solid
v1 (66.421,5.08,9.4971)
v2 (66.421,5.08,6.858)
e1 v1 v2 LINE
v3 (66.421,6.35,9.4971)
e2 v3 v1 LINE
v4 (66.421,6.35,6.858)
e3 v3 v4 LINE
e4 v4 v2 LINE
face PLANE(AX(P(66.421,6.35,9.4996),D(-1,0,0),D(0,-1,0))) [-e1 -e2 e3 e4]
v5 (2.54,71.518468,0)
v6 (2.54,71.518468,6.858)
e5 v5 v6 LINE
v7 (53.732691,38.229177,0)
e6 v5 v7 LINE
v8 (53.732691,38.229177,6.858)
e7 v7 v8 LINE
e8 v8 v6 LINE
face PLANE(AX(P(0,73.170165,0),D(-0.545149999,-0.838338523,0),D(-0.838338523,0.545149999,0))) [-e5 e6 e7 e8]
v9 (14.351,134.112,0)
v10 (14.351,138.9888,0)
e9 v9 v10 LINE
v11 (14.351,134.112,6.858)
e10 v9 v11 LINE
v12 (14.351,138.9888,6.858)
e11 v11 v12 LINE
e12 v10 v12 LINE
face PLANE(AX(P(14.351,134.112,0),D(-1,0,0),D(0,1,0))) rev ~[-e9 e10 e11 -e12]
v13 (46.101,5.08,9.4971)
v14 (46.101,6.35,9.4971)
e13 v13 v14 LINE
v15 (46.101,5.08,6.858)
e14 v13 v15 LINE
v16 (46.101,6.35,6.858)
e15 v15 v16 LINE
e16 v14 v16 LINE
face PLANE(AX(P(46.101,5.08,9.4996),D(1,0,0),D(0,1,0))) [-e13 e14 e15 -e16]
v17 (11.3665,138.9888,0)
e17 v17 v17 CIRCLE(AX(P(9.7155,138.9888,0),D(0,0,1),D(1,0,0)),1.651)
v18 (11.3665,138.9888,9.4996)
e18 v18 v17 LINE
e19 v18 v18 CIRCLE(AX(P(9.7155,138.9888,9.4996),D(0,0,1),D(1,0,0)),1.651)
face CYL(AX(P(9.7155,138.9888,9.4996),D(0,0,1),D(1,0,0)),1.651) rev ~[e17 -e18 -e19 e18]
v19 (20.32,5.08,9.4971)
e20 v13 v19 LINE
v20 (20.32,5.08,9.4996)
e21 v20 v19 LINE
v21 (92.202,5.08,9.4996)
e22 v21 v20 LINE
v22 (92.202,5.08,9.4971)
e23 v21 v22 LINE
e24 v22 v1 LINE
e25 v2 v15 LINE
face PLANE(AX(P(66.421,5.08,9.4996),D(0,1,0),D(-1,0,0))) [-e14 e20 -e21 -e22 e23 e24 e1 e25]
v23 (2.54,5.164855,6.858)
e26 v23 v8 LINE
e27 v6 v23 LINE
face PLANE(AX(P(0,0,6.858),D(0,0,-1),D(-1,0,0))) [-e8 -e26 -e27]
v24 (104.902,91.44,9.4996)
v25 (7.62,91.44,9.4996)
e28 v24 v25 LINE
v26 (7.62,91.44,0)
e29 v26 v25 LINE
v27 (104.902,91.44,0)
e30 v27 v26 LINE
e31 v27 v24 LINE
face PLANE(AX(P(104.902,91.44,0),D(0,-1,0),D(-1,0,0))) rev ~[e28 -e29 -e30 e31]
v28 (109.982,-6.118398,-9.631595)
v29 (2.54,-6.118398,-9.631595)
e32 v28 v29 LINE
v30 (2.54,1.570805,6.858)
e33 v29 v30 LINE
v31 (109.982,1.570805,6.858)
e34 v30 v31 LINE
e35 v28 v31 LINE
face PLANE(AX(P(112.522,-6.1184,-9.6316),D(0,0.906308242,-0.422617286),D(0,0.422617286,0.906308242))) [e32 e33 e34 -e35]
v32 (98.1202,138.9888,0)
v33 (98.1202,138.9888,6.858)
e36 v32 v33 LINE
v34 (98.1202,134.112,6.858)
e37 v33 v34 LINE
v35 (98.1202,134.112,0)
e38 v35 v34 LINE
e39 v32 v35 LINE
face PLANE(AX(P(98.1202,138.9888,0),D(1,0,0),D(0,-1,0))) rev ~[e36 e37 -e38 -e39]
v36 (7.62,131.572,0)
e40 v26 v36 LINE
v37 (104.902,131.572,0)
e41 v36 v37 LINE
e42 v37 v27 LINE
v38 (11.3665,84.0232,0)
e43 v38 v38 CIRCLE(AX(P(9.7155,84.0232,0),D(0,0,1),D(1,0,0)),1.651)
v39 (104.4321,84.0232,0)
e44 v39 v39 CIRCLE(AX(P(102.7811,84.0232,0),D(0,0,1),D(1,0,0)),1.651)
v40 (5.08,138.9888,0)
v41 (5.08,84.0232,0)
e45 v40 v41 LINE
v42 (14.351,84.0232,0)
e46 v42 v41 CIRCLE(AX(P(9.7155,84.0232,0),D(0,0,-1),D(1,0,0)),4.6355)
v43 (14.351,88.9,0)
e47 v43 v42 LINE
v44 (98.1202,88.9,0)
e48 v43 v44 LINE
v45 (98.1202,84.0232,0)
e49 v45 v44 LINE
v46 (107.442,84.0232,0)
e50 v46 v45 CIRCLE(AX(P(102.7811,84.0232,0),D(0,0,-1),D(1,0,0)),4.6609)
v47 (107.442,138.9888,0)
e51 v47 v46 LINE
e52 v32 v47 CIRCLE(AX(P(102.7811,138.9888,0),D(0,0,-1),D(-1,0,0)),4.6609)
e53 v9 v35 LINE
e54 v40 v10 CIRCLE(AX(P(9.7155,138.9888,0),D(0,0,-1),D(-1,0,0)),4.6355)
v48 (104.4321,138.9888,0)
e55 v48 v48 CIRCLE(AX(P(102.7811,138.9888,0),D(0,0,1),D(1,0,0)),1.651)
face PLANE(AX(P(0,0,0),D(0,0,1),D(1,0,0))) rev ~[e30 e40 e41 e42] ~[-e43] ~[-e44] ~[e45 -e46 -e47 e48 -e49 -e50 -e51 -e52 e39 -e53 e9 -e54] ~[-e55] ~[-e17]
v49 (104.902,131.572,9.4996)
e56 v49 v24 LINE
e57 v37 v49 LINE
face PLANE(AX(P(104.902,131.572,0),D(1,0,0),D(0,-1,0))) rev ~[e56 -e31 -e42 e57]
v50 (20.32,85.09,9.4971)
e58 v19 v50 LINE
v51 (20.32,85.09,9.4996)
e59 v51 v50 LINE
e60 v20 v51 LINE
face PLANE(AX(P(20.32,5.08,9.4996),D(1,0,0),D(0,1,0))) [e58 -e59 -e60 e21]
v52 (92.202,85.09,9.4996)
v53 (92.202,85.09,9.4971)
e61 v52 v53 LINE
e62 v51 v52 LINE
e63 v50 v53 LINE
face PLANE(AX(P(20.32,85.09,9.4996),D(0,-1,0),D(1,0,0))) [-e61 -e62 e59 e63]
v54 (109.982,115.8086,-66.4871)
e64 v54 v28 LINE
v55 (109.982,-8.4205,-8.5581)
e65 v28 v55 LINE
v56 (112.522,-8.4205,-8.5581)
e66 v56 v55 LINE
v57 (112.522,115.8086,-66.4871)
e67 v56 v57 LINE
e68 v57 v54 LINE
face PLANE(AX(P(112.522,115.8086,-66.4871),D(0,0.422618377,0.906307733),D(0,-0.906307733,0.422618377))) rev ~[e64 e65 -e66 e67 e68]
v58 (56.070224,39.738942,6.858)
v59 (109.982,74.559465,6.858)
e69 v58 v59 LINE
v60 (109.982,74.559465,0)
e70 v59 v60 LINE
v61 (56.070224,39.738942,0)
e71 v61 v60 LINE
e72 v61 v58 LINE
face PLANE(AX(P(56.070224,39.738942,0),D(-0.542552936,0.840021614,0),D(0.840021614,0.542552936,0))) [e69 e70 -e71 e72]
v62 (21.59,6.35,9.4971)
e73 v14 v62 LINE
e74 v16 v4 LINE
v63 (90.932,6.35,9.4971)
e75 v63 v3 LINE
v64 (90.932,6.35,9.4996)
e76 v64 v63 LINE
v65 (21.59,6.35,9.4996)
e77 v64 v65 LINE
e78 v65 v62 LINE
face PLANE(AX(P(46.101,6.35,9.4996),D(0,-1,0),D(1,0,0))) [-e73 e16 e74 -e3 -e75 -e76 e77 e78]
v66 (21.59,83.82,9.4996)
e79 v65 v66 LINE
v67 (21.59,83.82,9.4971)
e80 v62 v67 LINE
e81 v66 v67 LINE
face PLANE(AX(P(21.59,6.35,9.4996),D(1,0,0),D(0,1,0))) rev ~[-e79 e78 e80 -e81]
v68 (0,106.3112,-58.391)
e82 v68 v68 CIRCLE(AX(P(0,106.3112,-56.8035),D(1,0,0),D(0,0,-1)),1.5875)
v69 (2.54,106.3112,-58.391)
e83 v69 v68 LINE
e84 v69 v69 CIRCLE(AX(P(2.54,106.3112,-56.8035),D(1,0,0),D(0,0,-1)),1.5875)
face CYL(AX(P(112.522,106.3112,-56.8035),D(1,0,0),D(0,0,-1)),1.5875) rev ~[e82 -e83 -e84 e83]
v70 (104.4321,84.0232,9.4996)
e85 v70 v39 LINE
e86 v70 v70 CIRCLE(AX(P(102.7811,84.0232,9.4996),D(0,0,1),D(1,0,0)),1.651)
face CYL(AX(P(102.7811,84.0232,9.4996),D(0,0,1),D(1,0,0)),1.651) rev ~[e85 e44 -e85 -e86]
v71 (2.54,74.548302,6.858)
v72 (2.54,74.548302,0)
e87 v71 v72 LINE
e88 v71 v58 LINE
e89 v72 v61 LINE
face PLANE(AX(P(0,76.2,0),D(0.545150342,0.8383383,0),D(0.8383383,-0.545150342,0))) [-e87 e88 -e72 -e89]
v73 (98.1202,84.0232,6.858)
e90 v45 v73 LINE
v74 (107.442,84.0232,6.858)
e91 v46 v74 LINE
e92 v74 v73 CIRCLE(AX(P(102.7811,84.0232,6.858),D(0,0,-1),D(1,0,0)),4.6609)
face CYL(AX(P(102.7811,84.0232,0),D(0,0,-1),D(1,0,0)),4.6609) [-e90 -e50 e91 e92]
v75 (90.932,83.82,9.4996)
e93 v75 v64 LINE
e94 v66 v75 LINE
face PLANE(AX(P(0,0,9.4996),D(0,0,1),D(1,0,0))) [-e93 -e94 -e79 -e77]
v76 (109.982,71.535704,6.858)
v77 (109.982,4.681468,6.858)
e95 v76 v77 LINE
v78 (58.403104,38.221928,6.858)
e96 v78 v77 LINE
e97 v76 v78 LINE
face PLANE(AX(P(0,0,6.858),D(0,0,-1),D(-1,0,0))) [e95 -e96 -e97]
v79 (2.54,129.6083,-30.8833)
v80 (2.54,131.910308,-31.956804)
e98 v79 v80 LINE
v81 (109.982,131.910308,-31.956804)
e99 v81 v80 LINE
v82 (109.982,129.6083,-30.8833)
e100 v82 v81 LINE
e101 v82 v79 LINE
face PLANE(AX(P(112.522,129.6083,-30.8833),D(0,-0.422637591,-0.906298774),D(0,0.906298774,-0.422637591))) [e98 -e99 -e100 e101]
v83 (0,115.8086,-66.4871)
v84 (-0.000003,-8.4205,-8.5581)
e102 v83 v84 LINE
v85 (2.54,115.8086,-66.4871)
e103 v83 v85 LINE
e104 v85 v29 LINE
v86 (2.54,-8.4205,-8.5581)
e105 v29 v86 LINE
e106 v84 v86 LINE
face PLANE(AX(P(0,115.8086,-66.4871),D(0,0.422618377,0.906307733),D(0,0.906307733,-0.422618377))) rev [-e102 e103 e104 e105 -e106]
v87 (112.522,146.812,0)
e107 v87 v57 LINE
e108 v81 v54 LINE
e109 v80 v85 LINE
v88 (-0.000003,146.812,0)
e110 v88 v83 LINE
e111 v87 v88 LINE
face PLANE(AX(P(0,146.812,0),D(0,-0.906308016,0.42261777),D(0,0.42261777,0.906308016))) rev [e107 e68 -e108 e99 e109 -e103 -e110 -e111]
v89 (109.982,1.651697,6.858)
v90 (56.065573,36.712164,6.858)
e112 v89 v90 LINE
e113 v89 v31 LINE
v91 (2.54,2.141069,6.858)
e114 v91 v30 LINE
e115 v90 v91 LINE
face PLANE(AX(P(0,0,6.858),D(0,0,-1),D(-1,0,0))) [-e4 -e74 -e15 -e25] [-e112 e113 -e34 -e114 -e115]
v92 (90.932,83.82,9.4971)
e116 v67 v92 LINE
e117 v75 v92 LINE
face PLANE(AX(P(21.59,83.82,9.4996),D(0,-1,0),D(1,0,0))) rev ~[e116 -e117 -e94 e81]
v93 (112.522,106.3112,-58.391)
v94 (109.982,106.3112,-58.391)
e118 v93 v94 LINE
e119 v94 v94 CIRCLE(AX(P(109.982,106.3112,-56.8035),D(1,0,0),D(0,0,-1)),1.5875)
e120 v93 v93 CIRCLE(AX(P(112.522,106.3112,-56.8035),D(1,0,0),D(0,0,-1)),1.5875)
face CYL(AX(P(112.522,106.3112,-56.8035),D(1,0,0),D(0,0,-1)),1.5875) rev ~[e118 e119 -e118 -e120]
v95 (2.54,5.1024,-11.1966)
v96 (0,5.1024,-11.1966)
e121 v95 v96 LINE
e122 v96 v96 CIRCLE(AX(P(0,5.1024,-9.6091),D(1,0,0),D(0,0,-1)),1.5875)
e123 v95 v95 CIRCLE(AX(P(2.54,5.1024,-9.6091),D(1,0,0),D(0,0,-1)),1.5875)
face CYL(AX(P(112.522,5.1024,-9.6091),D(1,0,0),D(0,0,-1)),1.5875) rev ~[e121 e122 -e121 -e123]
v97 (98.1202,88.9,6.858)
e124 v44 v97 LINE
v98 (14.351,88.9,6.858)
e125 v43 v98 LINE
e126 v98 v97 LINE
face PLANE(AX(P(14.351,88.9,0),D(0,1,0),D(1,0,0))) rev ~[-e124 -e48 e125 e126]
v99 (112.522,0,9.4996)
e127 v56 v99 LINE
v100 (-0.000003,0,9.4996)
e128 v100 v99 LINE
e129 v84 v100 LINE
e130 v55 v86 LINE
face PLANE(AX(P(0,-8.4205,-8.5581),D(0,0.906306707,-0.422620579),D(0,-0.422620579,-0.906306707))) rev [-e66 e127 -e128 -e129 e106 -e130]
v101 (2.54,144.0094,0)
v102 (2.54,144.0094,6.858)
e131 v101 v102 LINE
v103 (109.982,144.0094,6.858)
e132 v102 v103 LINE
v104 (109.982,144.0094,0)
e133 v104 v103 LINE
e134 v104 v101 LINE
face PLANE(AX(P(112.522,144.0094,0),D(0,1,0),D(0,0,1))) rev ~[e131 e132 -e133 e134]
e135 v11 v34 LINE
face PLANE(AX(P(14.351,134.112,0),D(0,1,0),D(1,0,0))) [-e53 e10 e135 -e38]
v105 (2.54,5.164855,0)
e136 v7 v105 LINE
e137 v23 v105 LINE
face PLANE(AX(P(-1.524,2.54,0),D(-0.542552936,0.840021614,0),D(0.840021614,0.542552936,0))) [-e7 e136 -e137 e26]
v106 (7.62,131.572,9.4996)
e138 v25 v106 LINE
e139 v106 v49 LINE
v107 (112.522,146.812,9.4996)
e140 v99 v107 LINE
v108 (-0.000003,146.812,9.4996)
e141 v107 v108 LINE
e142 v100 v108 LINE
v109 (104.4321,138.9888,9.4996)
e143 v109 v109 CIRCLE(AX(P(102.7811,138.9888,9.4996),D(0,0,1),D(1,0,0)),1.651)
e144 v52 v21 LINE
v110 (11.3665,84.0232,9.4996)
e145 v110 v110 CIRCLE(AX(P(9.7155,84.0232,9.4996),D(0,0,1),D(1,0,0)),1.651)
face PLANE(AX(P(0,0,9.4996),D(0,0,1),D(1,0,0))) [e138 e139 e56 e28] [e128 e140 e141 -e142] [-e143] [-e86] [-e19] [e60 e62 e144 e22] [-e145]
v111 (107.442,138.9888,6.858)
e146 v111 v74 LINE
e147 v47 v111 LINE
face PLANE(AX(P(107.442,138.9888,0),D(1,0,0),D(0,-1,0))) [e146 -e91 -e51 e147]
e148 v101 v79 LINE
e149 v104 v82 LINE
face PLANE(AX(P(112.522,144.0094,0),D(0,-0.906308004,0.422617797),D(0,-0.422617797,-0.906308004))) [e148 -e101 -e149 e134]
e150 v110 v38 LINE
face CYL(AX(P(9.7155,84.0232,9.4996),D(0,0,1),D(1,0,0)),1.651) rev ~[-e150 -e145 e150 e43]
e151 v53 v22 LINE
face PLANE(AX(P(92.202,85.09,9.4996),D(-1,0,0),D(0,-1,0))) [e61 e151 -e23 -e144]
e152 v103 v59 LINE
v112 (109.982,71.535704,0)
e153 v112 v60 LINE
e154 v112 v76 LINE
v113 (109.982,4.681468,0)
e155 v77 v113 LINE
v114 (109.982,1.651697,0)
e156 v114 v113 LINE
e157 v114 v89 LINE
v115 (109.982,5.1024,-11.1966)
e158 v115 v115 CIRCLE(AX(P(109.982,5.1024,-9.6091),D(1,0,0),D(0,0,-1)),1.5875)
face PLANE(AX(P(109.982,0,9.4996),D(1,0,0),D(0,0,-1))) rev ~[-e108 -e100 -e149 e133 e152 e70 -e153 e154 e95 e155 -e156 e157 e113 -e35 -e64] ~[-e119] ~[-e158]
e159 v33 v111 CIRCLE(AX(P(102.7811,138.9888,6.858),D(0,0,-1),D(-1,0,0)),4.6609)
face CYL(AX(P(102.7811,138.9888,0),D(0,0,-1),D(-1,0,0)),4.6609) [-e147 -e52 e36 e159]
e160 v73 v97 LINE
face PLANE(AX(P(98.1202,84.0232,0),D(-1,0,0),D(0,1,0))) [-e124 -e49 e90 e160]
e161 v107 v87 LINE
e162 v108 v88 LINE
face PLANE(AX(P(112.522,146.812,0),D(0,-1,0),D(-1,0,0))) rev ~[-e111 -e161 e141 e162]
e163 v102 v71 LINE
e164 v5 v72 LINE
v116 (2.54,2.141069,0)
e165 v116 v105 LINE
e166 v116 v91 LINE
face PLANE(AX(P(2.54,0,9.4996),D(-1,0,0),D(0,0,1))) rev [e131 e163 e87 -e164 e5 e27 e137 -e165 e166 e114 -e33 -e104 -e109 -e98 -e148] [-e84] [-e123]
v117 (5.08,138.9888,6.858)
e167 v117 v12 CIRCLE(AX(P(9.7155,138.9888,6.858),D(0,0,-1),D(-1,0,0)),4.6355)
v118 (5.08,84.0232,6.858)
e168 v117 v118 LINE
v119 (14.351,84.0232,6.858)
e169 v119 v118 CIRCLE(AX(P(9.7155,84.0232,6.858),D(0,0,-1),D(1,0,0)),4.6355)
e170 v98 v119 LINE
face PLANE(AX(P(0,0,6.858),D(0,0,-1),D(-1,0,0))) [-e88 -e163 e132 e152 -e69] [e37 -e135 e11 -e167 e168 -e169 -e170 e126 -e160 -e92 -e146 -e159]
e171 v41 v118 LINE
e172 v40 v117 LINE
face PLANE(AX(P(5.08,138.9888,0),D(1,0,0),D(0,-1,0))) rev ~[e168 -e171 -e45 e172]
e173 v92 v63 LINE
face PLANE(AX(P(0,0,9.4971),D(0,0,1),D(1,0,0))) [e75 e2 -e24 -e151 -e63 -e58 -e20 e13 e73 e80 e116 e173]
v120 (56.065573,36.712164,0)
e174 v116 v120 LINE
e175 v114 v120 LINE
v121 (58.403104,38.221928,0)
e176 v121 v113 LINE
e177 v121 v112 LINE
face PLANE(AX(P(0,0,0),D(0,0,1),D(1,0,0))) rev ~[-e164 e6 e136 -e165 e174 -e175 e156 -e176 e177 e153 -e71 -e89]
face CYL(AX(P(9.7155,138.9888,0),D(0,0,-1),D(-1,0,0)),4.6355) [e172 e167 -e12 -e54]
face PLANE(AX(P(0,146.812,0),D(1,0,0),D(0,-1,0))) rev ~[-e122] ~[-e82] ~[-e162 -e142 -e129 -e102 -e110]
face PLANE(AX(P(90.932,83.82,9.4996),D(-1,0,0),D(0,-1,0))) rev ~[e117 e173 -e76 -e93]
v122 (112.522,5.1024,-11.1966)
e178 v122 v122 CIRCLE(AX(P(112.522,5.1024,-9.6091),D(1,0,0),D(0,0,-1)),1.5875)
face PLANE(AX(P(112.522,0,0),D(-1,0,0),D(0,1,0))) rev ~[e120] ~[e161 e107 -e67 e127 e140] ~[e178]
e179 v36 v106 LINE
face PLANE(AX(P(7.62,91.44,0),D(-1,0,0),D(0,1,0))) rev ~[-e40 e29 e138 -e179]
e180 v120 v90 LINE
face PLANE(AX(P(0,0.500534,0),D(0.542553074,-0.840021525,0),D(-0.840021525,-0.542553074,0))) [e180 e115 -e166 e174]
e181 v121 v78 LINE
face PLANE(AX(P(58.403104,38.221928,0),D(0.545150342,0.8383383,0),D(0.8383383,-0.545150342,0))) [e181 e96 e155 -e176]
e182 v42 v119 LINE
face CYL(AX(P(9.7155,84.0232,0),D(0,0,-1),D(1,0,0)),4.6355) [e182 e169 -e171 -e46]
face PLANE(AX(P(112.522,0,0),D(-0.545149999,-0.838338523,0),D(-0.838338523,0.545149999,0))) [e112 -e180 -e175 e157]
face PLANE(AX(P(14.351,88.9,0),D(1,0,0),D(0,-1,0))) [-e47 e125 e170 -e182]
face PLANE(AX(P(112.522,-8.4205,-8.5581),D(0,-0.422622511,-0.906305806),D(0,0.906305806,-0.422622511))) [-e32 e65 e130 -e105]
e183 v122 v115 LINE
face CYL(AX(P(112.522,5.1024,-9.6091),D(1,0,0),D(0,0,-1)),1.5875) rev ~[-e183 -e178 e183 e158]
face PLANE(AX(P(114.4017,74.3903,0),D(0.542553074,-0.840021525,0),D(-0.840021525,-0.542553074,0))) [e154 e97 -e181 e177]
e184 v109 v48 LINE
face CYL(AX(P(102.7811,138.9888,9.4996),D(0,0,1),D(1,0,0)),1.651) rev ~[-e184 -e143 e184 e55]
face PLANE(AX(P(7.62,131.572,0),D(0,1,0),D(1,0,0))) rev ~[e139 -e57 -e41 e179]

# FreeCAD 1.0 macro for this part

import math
import FreeCAD as App
import Part
import Sketcher
from FreeCAD import Vector
Q = App.Units.Quantity

doc = App.newDocument("Part")
body = doc.addObject("PartDesign::Body", "Body")

sketch1 = body.newObject("Sketcher::SketchObject", "Sketch")
sketch1.AttachmentSupport = (doc.getObject("XY_Plane"), [""])
sketch1.MapMode = "FlatFace"
sketch1.addGeometry(Part.LineSegment(Vector(0, 147, 0), Vector(0, 0, 0)), False)
sketch1.addGeometry(Part.LineSegment(Vector(0, 0, 0), Vector(113, 0, 0)), False)
sketch1.addGeometry(Part.LineSegment(Vector(113, 0, 0), Vector(113, 147, 0)), False)
sketch1.addGeometry(Part.LineSegment(Vector(113, 147, 0), Vector(0, 147, 0)), False)
sketch1.addGeometry(Part.LineSegment(Vector(8, 91, 0), Vector(8, 132, 0)), False)
sketch1.addGeometry(Part.LineSegment(Vector(8, 132, 0), Vector(105, 132, 0)), False)
sketch1.addGeometry(Part.LineSegment(Vector(105, 132, 0), Vector(105, 91, 0)), False)
sketch1.addGeometry(Part.LineSegment(Vector(105, 91, 0), Vector(8, 91, 0)), False)
sketch1.addConstraint(Sketcher.Constraint("Coincident", 0, 2, 1, 1))
sketch1.addConstraint(Sketcher.Constraint("Coincident", 1, 2, 2, 1))
sketch1.addConstraint(Sketcher.Constraint("Coincident", 2, 2, 3, 1))
sketch1.addConstraint(Sketcher.Constraint("Coincident", 3, 2, 0, 1))
sketch1.addConstraint(Sketcher.Constraint("Coincident", 4, 2, 5, 1))
sketch1.addConstraint(Sketcher.Constraint("Coincident", 5, 2, 6, 1))
sketch1.addConstraint(Sketcher.Constraint("Coincident", 6, 2, 7, 1))
sketch1.addConstraint(Sketcher.Constraint("Coincident", 7, 2, 4, 1))
sketch1.addConstraint(Sketcher.Constraint("Vertical", 0))
sketch1.addConstraint(Sketcher.Constraint("Horizontal", 1))
sketch1.addConstraint(Sketcher.Constraint("Vertical", 2))
sketch1.addConstraint(Sketcher.Constraint("Horizontal", 3))
sketch1.addConstraint(Sketcher.Constraint("Vertical", 4))
sketch1.addConstraint(Sketcher.Constraint("Horizontal", 5))
sketch1.addConstraint(Sketcher.Constraint("Vertical", 6))
sketch1.addConstraint(Sketcher.Constraint("Horizontal", 7))
sketch1.addConstraint(Sketcher.Constraint("Coincident", 0, 2, -1, 1))
sketch1.addConstraint(Sketcher.Constraint("DistanceX", 5, 1, 5, 2, Q("3.83 in")))
sketch1.addConstraint(Sketcher.Constraint("DistanceY", 4, 1, 4, 2, Q("1.58 in")))
sketch1.addConstraint(Sketcher.Constraint("DistanceX", -1, 1, 4, 2, Q("0.3 in")))
sketch1.addConstraint(Sketcher.Constraint("DistanceY", 4, 2, 3, 2, Q("0.6 in")))
sketch1.addConstraint(Sketcher.Constraint("DistanceX", 5, 2, 2, 2, Q("0.3 in")))
sketch1.addConstraint(Sketcher.Constraint("DistanceY", 0, 2, 0, 1, Q("5.78 in")))
pad1 = body.newObject("PartDesign::Pad", "Pad")
pad1.Profile = sketch1
pad1.Length = Q("0.374 in")

sketch2 = body.newObject("Sketcher::SketchObject", "Sketch001")
sketch2.AttachmentSupport = (doc.getObject("XY_Plane"), [""])
sketch2.MapMode = "FlatFace"
sketch2.AttachmentOffset = App.Placement(Vector(0, 0, 0.374 * 25.4), App.Rotation())
sketch2.addGeometry(Part.LineSegment(Vector(92, 85, 0), Vector(20, 85, 0)), False)
sketch2.addGeometry(Part.LineSegment(Vector(20, 85, 0), Vector(20, 5, 0)), False)
sketch2.addGeometry(Part.LineSegment(Vector(20, 5, 0), Vector(92, 5, 0)), False)
sketch2.addGeometry(Part.LineSegment(Vector(92, 5, 0), Vector(92, 85, 0)), False)
sketch2.addGeometry(Part.LineSegment(Vector(22, 6, 0), Vector(22, 84, 0)), False)
sketch2.addGeometry(Part.LineSegment(Vector(22, 84, 0), Vector(91, 84, 0)), False)
sketch2.addGeometry(Part.LineSegment(Vector(91, 84, 0), Vector(91, 6, 0)), False)
sketch2.addGeometry(Part.LineSegment(Vector(91, 6, 0), Vector(22, 6, 0)), False)
sketch2.addConstraint(Sketcher.Constraint("Coincident", 0, 2, 1, 1))
sketch2.addConstraint(Sketcher.Constraint("Coincident", 1, 2, 2, 1))
sketch2.addConstraint(Sketcher.Constraint("Coincident", 2, 2, 3, 1))
sketch2.addConstraint(Sketcher.Constraint("Coincident", 3, 2, 0, 1))
sketch2.addConstraint(Sketcher.Constraint("Coincident", 4, 2, 5, 1))
sketch2.addConstraint(Sketcher.Constraint("Coincident", 5, 2, 6, 1))
sketch2.addConstraint(Sketcher.Constraint("Coincident", 6, 2, 7, 1))
sketch2.addConstraint(Sketcher.Constraint("Coincident", 7, 2, 4, 1))
sketch2.addConstraint(Sketcher.Constraint("Horizontal", 0))
sketch2.addConstraint(Sketcher.Constraint("Vertical", 1))
sketch2.addConstraint(Sketcher.Constraint("Horizontal", 2))
sketch2.addConstraint(Sketcher.Constraint("Vertical", 3))
sketch2.addConstraint(Sketcher.Constraint("Vertical", 4))
sketch2.addConstraint(Sketcher.Constraint("Horizontal", 5))
sketch2.addConstraint(Sketcher.Constraint("Vertical", 6))
sketch2.addConstraint(Sketcher.Constraint("Horizontal", 7))
sketch2.addConstraint(Sketcher.Constraint("DistanceX", 5, 1, 5, 2, Q("2.73 in")))
sketch2.addConstraint(Sketcher.Constraint("DistanceY", 4, 1, 4, 2, Q("3.05 in")))
sketch2.addConstraint(Sketcher.Constraint("DistanceX", -1, 1, 4, 2, Q("0.85 in")))
sketch2.addConstraint(Sketcher.Constraint("DistanceY", -1, 1, 6, 2, Q("0.25 in")))
sketch2.addConstraint(Sketcher.Constraint("DistanceX", 0, 2, 4, 2, Q("0.05 in")))
sketch2.addConstraint(Sketcher.Constraint("DistanceY", 4, 2, 0, 2, Q("0.05 in")))
sketch2.addConstraint(Sketcher.Constraint("DistanceX", 5, 2, 3, 2, Q("0.05 in")))
sketch2.addConstraint(Sketcher.Constraint("DistanceY", 2, 2, 6, 2, Q("0.05 in")))
pocket1 = body.newObject("PartDesign::Pocket", "Pocket")
pocket1.Profile = sketch2
pocket1.Length = Q("0.0000984 in")

sketch3 = body.newObject("Sketcher::SketchObject", "Sketch002")
sketch3.AttachmentSupport = (doc.getObject("XY_Plane"), [""])
sketch3.MapMode = "FlatFace"
sketch3.AttachmentOffset = App.Placement(Vector(0, 0, 0.374 * 25.4), App.Rotation())
sketch3.addGeometry(Part.Circle(Vector(9.7, 139, 0), Vector(0, 0, 1), 1.7), False)
sketch3.addGeometry(Part.Circle(Vector(102.8, 139, 0), Vector(0, 0, 1), 1.7), False)
sketch3.addGeometry(Part.Circle(Vector(102.8, 84, 0), Vector(0, 0, 1), 1.7), False)
sketch3.addGeometry(Part.Circle(Vector(9.7, 84, 0), Vector(0, 0, 1), 1.7), False)
sketch3.addGeometry(Part.LineSegment(Vector(66.4, 6.3, 0), Vector(46.1, 6.3, 0)), False)
sketch3.addGeometry(Part.LineSegment(Vector(46.1, 6.3, 0), Vector(46.1, 5.1, 0)), False)
sketch3.addGeometry(Part.LineSegment(Vector(46.1, 5.1, 0), Vector(66.4, 5.1, 0)), False)
sketch3.addGeometry(Part.LineSegment(Vector(66.4, 5.1, 0), Vector(66.4, 6.3, 0)), False)
sketch3.addConstraint(Sketcher.Constraint("Coincident", 4, 2, 5, 1))
sketch3.addConstraint(Sketcher.Constraint("Coincident", 5, 2, 6, 1))
sketch3.addConstraint(Sketcher.Constraint("Coincident", 6, 2, 7, 1))
sketch3.addConstraint(Sketcher.Constraint("Coincident", 7, 2, 4, 1))
sketch3.addConstraint(Sketcher.Constraint("Horizontal", 4))
sketch3.addConstraint(Sketcher.Constraint("Vertical", 5))
sketch3.addConstraint(Sketcher.Constraint("Horizontal", 6))
sketch3.addConstraint(Sketcher.Constraint("Vertical", 7))
sketch3.addConstraint(Sketcher.Constraint("Equal", 0, 1))
sketch3.addConstraint(Sketcher.Constraint("Equal", 1, 2))
sketch3.addConstraint(Sketcher.Constraint("Equal", 2, 3))
sketch3.addConstraint(Sketcher.Constraint("Horizontal", 0, 3, 1, 3))
sketch3.addConstraint(Sketcher.Constraint("Horizontal", 2, 3, 3, 3))
sketch3.addConstraint(Sketcher.Constraint("Vertical", 1, 3, 2, 3))
sketch3.addConstraint(Sketcher.Constraint("Vertical", 0, 3, 3, 3))
sketch3.addConstraint(Sketcher.Constraint("Diameter", 0, Q("0.13 in")))
sketch3.addConstraint(Sketcher.Constraint("DistanceX", 4, 2, 4, 1, Q("0.8 in")))
sketch3.addConstraint(Sketcher.Constraint("DistanceX", 0, 3, 1, 3, Q("3.664 in")))
sketch3.addConstraint(Sketcher.Constraint("DistanceY", 2, 3, 1, 3, Q("2.164 in")))
sketch3.addConstraint(Sketcher.Constraint("DistanceY", 5, 2, 5, 1, Q("0.05 in")))
sketch3.addConstraint(Sketcher.Constraint("DistanceY", -1, 1, 5, 2, Q("0.2 in")))
sketch3.addConstraint(Sketcher.Constraint("DistanceY", -1, 1, 0, 3, Q("5.472 in")))
sketch3.addConstraint(Sketcher.Constraint("DistanceX", -1, 1, 4, 2, Q("1.815 in")))
sketch3.addConstraint(Sketcher.Constraint("DistanceX", -1, 1, 0, 3, Q("0.3825 in")))
pocket2 = body.newObject("PartDesign::Pocket", "Pocket001")
pocket2.Profile = sketch3
pocket2.Type = "ThroughAll"

sketch4 = body.newObject("Sketcher::SketchObject", "Sketch003")
sketch4.AttachmentSupport = (doc.getObject("XY_Plane"), [""])
sketch4.MapMode = "FlatFace"
sketch4.addGeometry(Part.LineSegment(Vector(-12.7738, -18.4511, 0), Vector(-12.7738, 184.0109, 0)), False)
sketch4.addGeometry(Part.LineSegment(Vector(-12.7738, 184.0109, 0), Vector(117.8029, 184.0109, 0)), False)
sketch4.addGeometry(Part.LineSegment(Vector(117.8029, 184.0109, 0), Vector(117.8029, -18.4511, 0)), False)
sketch4.addGeometry(Part.LineSegment(Vector(117.8029, -18.4511, 0), Vector(-12.7738, -18.4511, 0)), False)
sketch4.addGeometry(Part.LineSegment(Vector(-0.1459, 0.4063, 0), Vector(56.065573, 36.712164, 0)), False)
sketch4.addGeometry(Part.LineSegment(Vector(56.065573, 36.712164, 0), Vector(112.522, 0, 0)), False)
sketch4.addGeometry(Part.LineSegment(Vector(112.522, 0, 0), Vector(112.5015, 3.0431, 0)), False)
sketch4.addGeometry(Part.LineSegment(Vector(112.5015, 3.0431, 0), Vector(58.403104, 38.221928, 0)), False)
sketch4.addGeometry(Part.LineSegment(Vector(58.403104, 38.221928, 0), Vector(114.4017, 74.3903, 0)), False)
sketch4.addGeometry(Part.LineSegment(Vector(114.4017, 74.3903, 0), Vector(112.522, 76.2, 0)), False)
sketch4.addGeometry(Part.LineSegment(Vector(112.522, 76.2, 0), Vector(56.070224, 39.738942, 0)), False)
sketch4.addGeometry(Part.LineSegment(Vector(56.070224, 39.738942, 0), Vector(0, 76.2, 0)), False)
sketch4.addGeometry(Part.LineSegment(Vector(0, 76.2, 0), Vector(-1.3847, 74.0706, 0)), False)
sketch4.addGeometry(Part.LineSegment(Vector(-1.3847, 74.0706, 0), Vector(53.732691, 38.229177, 0)), False)
sketch4.addGeometry(Part.LineSegment(Vector(53.732691, 38.229177, 0), Vector(-1.524, 2.54, 0)), False)
sketch4.addGeometry(Part.LineSegment(Vector(-1.524, 2.54, 0), Vector(-0.1459, 0.4063, 0)), False)
sketch4.addGeometry(Part.ArcOfCircle(Part.Circle(Vector(9.7155, 138.9888, 0), Vector(0, 0, 1), 4.6355), math.radians(0), math.radians(180)), False)
sketch4.addGeometry(Part.LineSegment(Vector(5.08, 138.9888, 0), Vector(5.08, 84.0232, 0)), False)
sketch4.addGeometry(Part.ArcOfCircle(Part.Circle(Vector(9.7155, 84.0232, 0), Vector(0, 0, 1), 4.6355), math.radians(180), math.radians(360)), False)
sketch4.addGeometry(Part.LineSegment(Vector(14.351, 84.0232, 0), Vector(14.351, 88.9, 0)), False)
sketch4.addGeometry(Part.LineSegment(Vector(14.351, 88.9, 0), Vector(98.1202, 88.9, 0)), False)
sketch4.addGeometry(Part.LineSegment(Vector(98.1202, 88.9, 0), Vector(98.1202, 84.0232, 0)), False)
sketch4.addGeometry(Part.ArcOfCircle(Part.Circle(Vector(102.7811, 84.0232, 0), Vector(0, 0, 1), 4.6609), math.radians(180), math.radians(360)), False)
sketch4.addGeometry(Part.LineSegment(Vector(107.442, 84.0232, 0), Vector(107.442, 138.9888, 0)), False)
sketch4.addGeometry(Part.ArcOfCircle(Part.Circle(Vector(102.7811, 138.9888, 0), Vector(0, 0, 1), 4.6609), math.radians(0), math.radians(180)), False)
sketch4.addGeometry(Part.LineSegment(Vector(98.1202, 138.9888, 0), Vector(98.1202, 134.112, 0)), False)
sketch4.addGeometry(Part.LineSegment(Vector(98.1202, 134.112, 0), Vector(14.351, 134.112, 0)), False)
sketch4.addGeometry(Part.LineSegment(Vector(14.351, 134.112, 0), Vector(14.351, 138.9888, 0)), False)
sketch4.addConstraint(Sketcher.Constraint("Coincident", 0, 2, 1, 1))
sketch4.addConstraint(Sketcher.Constraint("Coincident", 1, 2, 2, 1))
sketch4.addConstraint(Sketcher.Constraint("Coincident", 2, 2, 3, 1))
sketch4.addConstraint(Sketcher.Constraint("Coincident", 3, 2, 0, 1))
sketch4.addConstraint(Sketcher.Constraint("Coincident", 4, 2, 5, 1))
sketch4.addConstraint(Sketcher.Constraint("Coincident", 5, 2, 6, 1))
sketch4.addConstraint(Sketcher.Constraint("Coincident", 6, 2, 7, 1))
sketch4.addConstraint(Sketcher.Constraint("Coincident", 7, 2, 8, 1))
sketch4.addConstraint(Sketcher.Constraint("Coincident", 8, 2, 9, 1))
sketch4.addConstraint(Sketcher.Constraint("Coincident", 9, 2, 10, 1))
sketch4.addConstraint(Sketcher.Constraint("Coincident", 10, 2, 11, 1))
sketch4.addConstraint(Sketcher.Constraint("Coincident", 11, 2, 12, 1))
sketch4.addConstraint(Sketcher.Constraint("Coincident", 12, 2, 13, 1))
sketch4.addConstraint(Sketcher.Constraint("Coincident", 13, 2, 14, 1))
sketch4.addConstraint(Sketcher.Constraint("Coincident", 14, 2, 15, 1))
sketch4.addConstraint(Sketcher.Constraint("Coincident", 15, 2, 4, 1))
sketch4.addConstraint(Sketcher.Constraint("Coincident", 16, 2, 17, 1))
sketch4.addConstraint(Sketcher.Constraint("Coincident", 17, 2, 18, 1))
sketch4.addConstraint(Sketcher.Constraint("Coincident", 18, 2, 19, 1))
sketch4.addConstraint(Sketcher.Constraint("Coincident", 19, 2, 20, 1))
sketch4.addConstraint(Sketcher.Constraint("Coincident", 20, 2, 21, 1))
sketch4.addConstraint(Sketcher.Constraint("Coincident", 21, 2, 22, 1))
sketch4.addConstraint(Sketcher.Constraint("Coincident", 22, 2, 23, 1))
sketch4.addConstraint(Sketcher.Constraint("Coincident", 23, 2, 24, 1))
sketch4.addConstraint(Sketcher.Constraint("Coincident", 24, 2, 25, 1))
sketch4.addConstraint(Sketcher.Constraint("Coincident", 25, 2, 26, 1))
sketch4.addConstraint(Sketcher.Constraint("Coincident", 26, 2, 27, 1))
sketch4.addConstraint(Sketcher.Constraint("Coincident", 27, 2, 16, 1))
sketch4.addConstraint(Sketcher.Constraint("Vertical", 0))
sketch4.addConstraint(Sketcher.Constraint("Horizontal", 1))
sketch4.addConstraint(Sketcher.Constraint("Vertical", 2))
sketch4.addConstraint(Sketcher.Constraint("Horizontal", 3))
sketch4.addConstraint(Sketcher.Constraint("Vertical", 17))
sketch4.addConstraint(Sketcher.Constraint("Vertical", 19))
sketch4.addConstraint(Sketcher.Constraint("Horizontal", 20))
sketch4.addConstraint(Sketcher.Constraint("Vertical", 21))
sketch4.addConstraint(Sketcher.Constraint("Vertical", 23))
sketch4.addConstraint(Sketcher.Constraint("Vertical", 25))
sketch4.addConstraint(Sketcher.Constraint("Horizontal", 26))
sketch4.addConstraint(Sketcher.Constraint("Vertical", 27))
sketch4.addConstraint(Sketcher.Constraint("PointOnObject", 5, 2, -1))
sketch4.addConstraint(Sketcher.Constraint("PointOnObject", 11, 2, -2))
sketch4.addConstraint(Sketcher.Constraint("DistanceY", -1, 1, 9, 2, Q("3 in")))
sketch4.addConstraint(Sketcher.Constraint("DistanceY", -1, 1, 11, 2, Q("3 in")))
sketch4.addConstraint(Sketcher.Constraint("Distance", 12, Q("0.1 in")))
sketch4.addConstraint(Sketcher.Constraint("Distance", 15, Q("0.1 in")))
sketch4.addConstraint(Sketcher.Constraint("DistanceY", -1, 1, 14, 2, Q("0.1 in")))
sketch4.addConstraint(Sketcher.Constraint("DistanceX", 14, 2, -1, 1, Q("0.06 in")))
sketch4.addConstraint(Sketcher.Constraint("DistanceX", -1, 1, 16, 2, Q("0.2 in")))
sketch4.addConstraint(Sketcher.Constraint("DistanceY", -1, 1, 19, 2, Q("3.5 in")))
sketch4.addConstraint(Sketcher.Constraint("Radius", 16, Q("0.1825 in")))
sketch4.addConstraint(Sketcher.Constraint("Radius", 18, Q("0.1825 in")))
sketch4.addConstraint(Sketcher.Constraint("Radius", 22, Q("0.1835 in")))
sketch4.addConstraint(Sketcher.Constraint("Radius", 24, Q("0.1835 in")))
sketch4.addConstraint(Sketcher.Constraint("DistanceX", 22, 2, 9, 2, Q("0.2 in")))
sketch4.addConstraint(Sketcher.Constraint("DistanceX", 20, 1, 20, 2, Q("3.298 in")))
sketch4.addConstraint(Sketcher.Constraint("DistanceY", 17, 2, 17, 1, Q("2.164 in")))
sketch4.addConstraint(Sketcher.Constraint("DistanceY", 19, 1, 19, 2, Q("0.192 in")))
sketch4.addConstraint(Sketcher.Constraint("DistanceY", 21, 2, 21, 1, Q("0.192 in")))
sketch4.addConstraint(Sketcher.Constraint("DistanceY", 23, 1, 23, 2, Q("2.164 in")))
sketch4.addConstraint(Sketcher.Constraint("DistanceY", 25, 2, 25, 1, Q("0.192 in")))
sketch4.addConstraint(Sketcher.Constraint("DistanceY", 27, 1, 27, 2, Q("0.192 in")))
sketch4.addConstraint(Sketcher.Constraint("DistanceX", -1, 1, 5, 2, Q("4.43 in")))
sketch4.addConstraint(Sketcher.Constraint("DistanceY", -1, 1, 25, 2, Q("5.28 in")))
sketch4.addConstraint(Sketcher.Constraint("DistanceY", -1, 1, 16, 3, Q("5.472 in")))
sketch4.addConstraint(Sketcher.Constraint("DistanceY", -1, 1, 18, 3, Q("3.308 in")))
sketch4.addConstraint(Sketcher.Constraint("DistanceY", -1, 1, 22, 3, Q("3.308 in")))
sketch4.addConstraint(Sketcher.Constraint("DistanceY", -1, 1, 24, 3, Q("5.472 in")))
sketch4.addConstraint(Sketcher.Constraint("DistanceX", -1, 1, 8, 2, Q("4.504 in")))
sketch4.addConstraint(Sketcher.Constraint("DistanceY", -1, 1, 15, 2, Q("0.016 in")))
sketch4.addConstraint(Sketcher.Constraint("DistanceY", -1, 1, 16, 2, Q("5.472 in")))
sketch4.addConstraint(Sketcher.Constraint("DistanceY", -1, 1, 22, 2, Q("3.308 in")))
sketch4.addConstraint(Sketcher.Constraint("DistanceY", 6, 2, 7, 2, Q("1.385 in")))
sketch4.addConstraint(Sketcher.Constraint("DistanceX", 18, 3, 10, 2, Q("1.825 in")))
sketch4.addConstraint(Sketcher.Constraint("DistanceX", 12, 2, 10, 2, Q("2.262 in")))
sketch4.addConstraint(Sketcher.Constraint("Distance", 5, Q("2.6513 in")))
sketch4.addConstraint(Sketcher.Constraint("Distance", 6, Q("0.1198 in")))
sketch4.addConstraint(Sketcher.Constraint("DistanceX", 1, 1, 1, 2, 130.5767))
sketch4.addConstraint(Sketcher.Constraint("DistanceY", 0, 1, 0, 2, 202.462))
sketch4.addConstraint(Sketcher.Constraint("DistanceX", 0, 2, -1, 1, Q("0.5029 in")))
sketch4.addConstraint(Sketcher.Constraint("DistanceX", -1, 1, 4, 2, Q("2.2073 in")))
sketch4.addConstraint(Sketcher.Constraint("DistanceX", -1, 1, 6, 2, Q("4.4292 in")))
sketch4.addConstraint(Sketcher.Constraint("DistanceY", 4, 2, 8, 2, Q("1.4834 in")))
sketch4.addConstraint(Sketcher.Constraint("DistanceX", 15, 2, 13, 2, Q("2.1212 in")))
sketch4.addConstraint(Sketcher.Constraint("DistanceY", 15, 2, 13, 2, Q("1.4891 in")))
sketch4.addConstraint(Sketcher.Constraint("Distance", 7, 64.5305))
sketch4.addConstraint(Sketcher.Constraint("Distance", 10, 67.2028))
sketch4.addConstraint(Sketcher.Constraint("DistanceY", -1, 1, 0, 2, 184.011))
pocket3 = body.newObject("PartDesign::Pocket", "Pocket002")
pocket3.Profile = sketch4
pocket3.Length = Q("0.27 in")
pocket3.Reversed = True

sketch5 = body.newObject("Sketcher::SketchObject", "Sketch004")
sketch5.AttachmentSupport = (doc.getObject("YZ_Plane"), [""])
sketch5.MapMode = "FlatFace"
sketch5.AttachmentOffset = App.Placement(Vector(0, 0, 4.43 * 25.4), App.Rotation())
sketch5.addGeometry(Part.LineSegment(Vector(147, 9, 0), Vector(0, 9, 0)), False)
sketch5.addGeometry(Part.LineSegment(Vector(0, 9, 0), Vector(-8, -9, 0)), False)
sketch5.addGeometry(Part.LineSegment(Vector(-8, -9, 0), Vector(116, -66, 0)), False)
sketch5.addGeometry(Part.LineSegment(Vector(116, -66, 0), Vector(147, 0, 0)), False)
sketch5.addGeometry(Part.LineSegment(Vector(147, 0, 0), Vector(147, 9, 0)), False)
sketch5.addConstraint(Sketcher.Constraint("Coincident", 0, 2, 1, 1))
sketch5.addConstraint(Sketcher.Constraint("Coincident", 1, 2, 2, 1))
sketch5.addConstraint(Sketcher.Constraint("Coincident", 2, 2, 3, 1))
sketch5.addConstraint(Sketcher.Constraint("Coincident", 3, 2, 4, 1))
sketch5.addConstraint(Sketcher.Constraint("Coincident", 4, 2, 0, 1))
sketch5.addConstraint(Sketcher.Constraint("Horizontal", 0))
sketch5.addConstraint(Sketcher.Constraint("Vertical", 4))
sketch5.addConstraint(Sketcher.Constraint("PointOnObject", 0, 2, -2))
sketch5.addConstraint(Sketcher.Constraint("PointOnObject", 3, 2, -1))
sketch5.addConstraint(Sketcher.Constraint("Perpendicular", 1, 2))
sketch5.addConstraint(Sketcher.Constraint("Perpendicular", 2, 3))
sketch5.addConstraint(Sketcher.Constraint("Angle", 2, Q("-25 deg")))
sketch5.addConstraint(Sketcher.Constraint("DistanceX", 0, 2, 0, 1, Q("5.78 in")))
sketch5.addConstraint(Sketcher.Constraint("DistanceY", 4, 1, 4, 2, Q("0.374 in")))
sketch5.addConstraint(Sketcher.Constraint("Distance", 3, Q("2.8882 in")))
pad2 = body.newObject("PartDesign::Pad", "Pad001")
pad2.Profile = sketch5
pad2.Length = Q("0.1 in")
pad2.Reversed = True
doc.recompute()

datumplane = body.newObject("PartDesign::Plane", "DatumPlane")
datumplane.AttachmentSupport = (doc.getObject("YZ_Plane"), [""])
datumplane.MapMode = "FlatFace"
datumplane.AttachmentOffset = App.Placement(Vector(0, 0, 2.215 * 25.4), App.Rotation())
mirrored = body.newObject("PartDesign::Mirrored", "Mirrored")
mirrored.Originals = [pad2]
mirrored.MirrorPlane = (datumplane, [""])
body.Tip = mirrored

sketch6 = body.newObject("Sketcher::SketchObject", "Sketch005")
sketch6.AttachmentSupport = (doc.getObject("YZ_Plane"), [""])
sketch6.MapMode = "FlatFace"
sketch6.AttachmentOffset = App.Placement(Vector(0, 0, 4.43 * 25.4), App.Rotation())
sketch6.addGeometry(Part.LineSegment(Vector(0, 9.5, 0), Vector(-8.4, -8.6, 0)), False)
sketch6.addGeometry(Part.LineSegment(Vector(-8.4, -8.6, 0), Vector(-6.1, -9.6, 0)), False)
sketch6.addGeometry(Part.LineSegment(Vector(-6.1, -9.6, 0), Vector(2.8, 9.5, 0)), False)
sketch6.addGeometry(Part.LineSegment(Vector(2.8, 9.5, 0), Vector(0, 9.5, 0)), False)
sketch6.addGeometry(Part.LineSegment(Vector(146.8, 9.5, 0), Vector(144, 9.5, 0)), False)
sketch6.addGeometry(Part.LineSegment(Vector(144, 9.5, 0), Vector(144, 0, 0)), False)
sketch6.addGeometry(Part.LineSegment(Vector(144, 0, 0), Vector(129.6, -30.9, 0)), False)
sketch6.addGeometry(Part.LineSegment(Vector(129.6, -30.9, 0), Vector(131.9, -32, 0)), False)
sketch6.addGeometry(Part.LineSegment(Vector(131.9, -32, 0), Vector(146.8, 0, 0)), False)
sketch6.addGeometry(Part.LineSegment(Vector(146.8, 0, 0), Vector(146.8, 9.5, 0)), False)
sketch6.addConstraint(Sketcher.Constraint("Coincident", 0, 2, 1, 1))
sketch6.addConstraint(Sketcher.Constraint("Coincident", 1, 2, 2, 1))
sketch6.addConstraint(Sketcher.Constraint("Coincident", 2, 2, 3, 1))
sketch6.addConstraint(Sketcher.Constraint("Coincident", 3, 2, 0, 1))
sketch6.addConstraint(Sketcher.Constraint("Coincident", 4, 2, 5, 1))
sketch6.addConstraint(Sketcher.Constraint("Coincident", 5, 2, 6, 1))
sketch6.addConstraint(Sketcher.Constraint("Coincident", 6, 2, 7, 1))
sketch6.addConstraint(Sketcher.Constraint("Coincident", 7, 2, 8, 1))
sketch6.addConstraint(Sketcher.Constraint("Coincident", 8, 2, 9, 1))
sketch6.addConstraint(Sketcher.Constraint("Coincident", 9, 2, 4, 1))
sketch6.addConstraint(Sketcher.Constraint("Horizontal", 3))
sketch6.addConstraint(Sketcher.Constraint("Horizontal", 4))
sketch6.addConstraint(Sketcher.Constraint("Vertical", 5))
sketch6.addConstraint(Sketcher.Constraint("Vertical", 9))
sketch6.addConstraint(Sketcher.Constraint("PointOnObject", 3, 2, -2))
sketch6.addConstraint(Sketcher.Constraint("PointOnObject", 5, 2, -1))
sketch6.addConstraint(Sketcher.Constraint("PointOnObject", 8, 2, -1))
sketch6.addConstraint(Sketcher.Constraint("Perpendicular", 0, 1))
sketch6.addConstraint(Sketcher.Constraint("Perpendicular", 1, 2))
sketch6.addConstraint(Sketcher.Constraint("Parallel", 2, 6))
sketch6.addConstraint(Sketcher.Constraint("Perpendicular", 6, 7))
sketch6.addConstraint(Sketcher.Constraint("Perpendicular", 7, 8))
sketch6.addConstraint(Sketcher.Constraint("Horizontal", 3, 2, 4, 2))
sketch6.addConstraint(Sketcher.Constraint("Equal", 3, 4))
sketch6.addConstraint(Sketcher.Constraint("Distance", 1, Q("0.1 in")))
sketch6.addConstraint(Sketcher.Constraint("Angle", 0, Q("-115.0001 deg")))
sketch6.addConstraint(Sketcher.Constraint("DistanceY", 5, 2, 5, 1, Q("0.374 in")))
sketch6.addConstraint(Sketcher.Constraint("DistanceX", -1, 1, 8, 2, Q("5.78 in")))
sketch6.addConstraint(Sketcher.Constraint("Distance", 8, Q("1.3882 in")))
sketch6.addConstraint(Sketcher.Constraint("DistanceY", 1, 2, -1, 1, Q("0.3792 in")))
pad3 = body.newObject("PartDesign::Pad", "Pad002")
pad3.Profile = sketch6
pad3.Type = "UpToLast"
pad3.Reversed = True

sketch7 = body.newObject("Sketcher::SketchObject", "Sketch006")
sketch7.AttachmentSupport = (doc.getObject("YZ_Plane"), [""])
sketch7.MapMode = "FlatFace"
sketch7.AttachmentOffset = App.Placement(Vector(0, 0, 4.43 * 25.4), App.Rotation())
sketch7.addGeometry(Part.Circle(Vector(5.1, -9.6, 0), Vector(0, 0, 1), 1.6), False)
sketch7.addGeometry(Part.Circle(Vector(106.3, -56.8, 0), Vector(0, 0, 1), 1.6), False)
sketch7.addConstraint(Sketcher.Constraint("Equal", 0, 1))
sketch7.addConstraint(Sketcher.Constraint("Diameter", 0, Q("0.125 in")))
sketch7.addConstraint(Sketcher.Constraint("DistanceY", 0, 3, -1, 1, Q("0.3783 in")))
sketch7.addConstraint(Sketcher.Constraint("DistanceX", 0, 3, 1, 3, Q("3.9846 in")))
sketch7.addConstraint(Sketcher.Constraint("DistanceX", -1, 1, 0, 3, 5.1024))
sketch7.addConstraint(Sketcher.Constraint("DistanceY", 1, 3, -1, 1, 56.8035))
pocket4 = body.newObject("PartDesign::Pocket", "Pocket003")
pocket4.Profile = sketch7
pocket4.Type = "ThroughAll"

doc.recompute()
